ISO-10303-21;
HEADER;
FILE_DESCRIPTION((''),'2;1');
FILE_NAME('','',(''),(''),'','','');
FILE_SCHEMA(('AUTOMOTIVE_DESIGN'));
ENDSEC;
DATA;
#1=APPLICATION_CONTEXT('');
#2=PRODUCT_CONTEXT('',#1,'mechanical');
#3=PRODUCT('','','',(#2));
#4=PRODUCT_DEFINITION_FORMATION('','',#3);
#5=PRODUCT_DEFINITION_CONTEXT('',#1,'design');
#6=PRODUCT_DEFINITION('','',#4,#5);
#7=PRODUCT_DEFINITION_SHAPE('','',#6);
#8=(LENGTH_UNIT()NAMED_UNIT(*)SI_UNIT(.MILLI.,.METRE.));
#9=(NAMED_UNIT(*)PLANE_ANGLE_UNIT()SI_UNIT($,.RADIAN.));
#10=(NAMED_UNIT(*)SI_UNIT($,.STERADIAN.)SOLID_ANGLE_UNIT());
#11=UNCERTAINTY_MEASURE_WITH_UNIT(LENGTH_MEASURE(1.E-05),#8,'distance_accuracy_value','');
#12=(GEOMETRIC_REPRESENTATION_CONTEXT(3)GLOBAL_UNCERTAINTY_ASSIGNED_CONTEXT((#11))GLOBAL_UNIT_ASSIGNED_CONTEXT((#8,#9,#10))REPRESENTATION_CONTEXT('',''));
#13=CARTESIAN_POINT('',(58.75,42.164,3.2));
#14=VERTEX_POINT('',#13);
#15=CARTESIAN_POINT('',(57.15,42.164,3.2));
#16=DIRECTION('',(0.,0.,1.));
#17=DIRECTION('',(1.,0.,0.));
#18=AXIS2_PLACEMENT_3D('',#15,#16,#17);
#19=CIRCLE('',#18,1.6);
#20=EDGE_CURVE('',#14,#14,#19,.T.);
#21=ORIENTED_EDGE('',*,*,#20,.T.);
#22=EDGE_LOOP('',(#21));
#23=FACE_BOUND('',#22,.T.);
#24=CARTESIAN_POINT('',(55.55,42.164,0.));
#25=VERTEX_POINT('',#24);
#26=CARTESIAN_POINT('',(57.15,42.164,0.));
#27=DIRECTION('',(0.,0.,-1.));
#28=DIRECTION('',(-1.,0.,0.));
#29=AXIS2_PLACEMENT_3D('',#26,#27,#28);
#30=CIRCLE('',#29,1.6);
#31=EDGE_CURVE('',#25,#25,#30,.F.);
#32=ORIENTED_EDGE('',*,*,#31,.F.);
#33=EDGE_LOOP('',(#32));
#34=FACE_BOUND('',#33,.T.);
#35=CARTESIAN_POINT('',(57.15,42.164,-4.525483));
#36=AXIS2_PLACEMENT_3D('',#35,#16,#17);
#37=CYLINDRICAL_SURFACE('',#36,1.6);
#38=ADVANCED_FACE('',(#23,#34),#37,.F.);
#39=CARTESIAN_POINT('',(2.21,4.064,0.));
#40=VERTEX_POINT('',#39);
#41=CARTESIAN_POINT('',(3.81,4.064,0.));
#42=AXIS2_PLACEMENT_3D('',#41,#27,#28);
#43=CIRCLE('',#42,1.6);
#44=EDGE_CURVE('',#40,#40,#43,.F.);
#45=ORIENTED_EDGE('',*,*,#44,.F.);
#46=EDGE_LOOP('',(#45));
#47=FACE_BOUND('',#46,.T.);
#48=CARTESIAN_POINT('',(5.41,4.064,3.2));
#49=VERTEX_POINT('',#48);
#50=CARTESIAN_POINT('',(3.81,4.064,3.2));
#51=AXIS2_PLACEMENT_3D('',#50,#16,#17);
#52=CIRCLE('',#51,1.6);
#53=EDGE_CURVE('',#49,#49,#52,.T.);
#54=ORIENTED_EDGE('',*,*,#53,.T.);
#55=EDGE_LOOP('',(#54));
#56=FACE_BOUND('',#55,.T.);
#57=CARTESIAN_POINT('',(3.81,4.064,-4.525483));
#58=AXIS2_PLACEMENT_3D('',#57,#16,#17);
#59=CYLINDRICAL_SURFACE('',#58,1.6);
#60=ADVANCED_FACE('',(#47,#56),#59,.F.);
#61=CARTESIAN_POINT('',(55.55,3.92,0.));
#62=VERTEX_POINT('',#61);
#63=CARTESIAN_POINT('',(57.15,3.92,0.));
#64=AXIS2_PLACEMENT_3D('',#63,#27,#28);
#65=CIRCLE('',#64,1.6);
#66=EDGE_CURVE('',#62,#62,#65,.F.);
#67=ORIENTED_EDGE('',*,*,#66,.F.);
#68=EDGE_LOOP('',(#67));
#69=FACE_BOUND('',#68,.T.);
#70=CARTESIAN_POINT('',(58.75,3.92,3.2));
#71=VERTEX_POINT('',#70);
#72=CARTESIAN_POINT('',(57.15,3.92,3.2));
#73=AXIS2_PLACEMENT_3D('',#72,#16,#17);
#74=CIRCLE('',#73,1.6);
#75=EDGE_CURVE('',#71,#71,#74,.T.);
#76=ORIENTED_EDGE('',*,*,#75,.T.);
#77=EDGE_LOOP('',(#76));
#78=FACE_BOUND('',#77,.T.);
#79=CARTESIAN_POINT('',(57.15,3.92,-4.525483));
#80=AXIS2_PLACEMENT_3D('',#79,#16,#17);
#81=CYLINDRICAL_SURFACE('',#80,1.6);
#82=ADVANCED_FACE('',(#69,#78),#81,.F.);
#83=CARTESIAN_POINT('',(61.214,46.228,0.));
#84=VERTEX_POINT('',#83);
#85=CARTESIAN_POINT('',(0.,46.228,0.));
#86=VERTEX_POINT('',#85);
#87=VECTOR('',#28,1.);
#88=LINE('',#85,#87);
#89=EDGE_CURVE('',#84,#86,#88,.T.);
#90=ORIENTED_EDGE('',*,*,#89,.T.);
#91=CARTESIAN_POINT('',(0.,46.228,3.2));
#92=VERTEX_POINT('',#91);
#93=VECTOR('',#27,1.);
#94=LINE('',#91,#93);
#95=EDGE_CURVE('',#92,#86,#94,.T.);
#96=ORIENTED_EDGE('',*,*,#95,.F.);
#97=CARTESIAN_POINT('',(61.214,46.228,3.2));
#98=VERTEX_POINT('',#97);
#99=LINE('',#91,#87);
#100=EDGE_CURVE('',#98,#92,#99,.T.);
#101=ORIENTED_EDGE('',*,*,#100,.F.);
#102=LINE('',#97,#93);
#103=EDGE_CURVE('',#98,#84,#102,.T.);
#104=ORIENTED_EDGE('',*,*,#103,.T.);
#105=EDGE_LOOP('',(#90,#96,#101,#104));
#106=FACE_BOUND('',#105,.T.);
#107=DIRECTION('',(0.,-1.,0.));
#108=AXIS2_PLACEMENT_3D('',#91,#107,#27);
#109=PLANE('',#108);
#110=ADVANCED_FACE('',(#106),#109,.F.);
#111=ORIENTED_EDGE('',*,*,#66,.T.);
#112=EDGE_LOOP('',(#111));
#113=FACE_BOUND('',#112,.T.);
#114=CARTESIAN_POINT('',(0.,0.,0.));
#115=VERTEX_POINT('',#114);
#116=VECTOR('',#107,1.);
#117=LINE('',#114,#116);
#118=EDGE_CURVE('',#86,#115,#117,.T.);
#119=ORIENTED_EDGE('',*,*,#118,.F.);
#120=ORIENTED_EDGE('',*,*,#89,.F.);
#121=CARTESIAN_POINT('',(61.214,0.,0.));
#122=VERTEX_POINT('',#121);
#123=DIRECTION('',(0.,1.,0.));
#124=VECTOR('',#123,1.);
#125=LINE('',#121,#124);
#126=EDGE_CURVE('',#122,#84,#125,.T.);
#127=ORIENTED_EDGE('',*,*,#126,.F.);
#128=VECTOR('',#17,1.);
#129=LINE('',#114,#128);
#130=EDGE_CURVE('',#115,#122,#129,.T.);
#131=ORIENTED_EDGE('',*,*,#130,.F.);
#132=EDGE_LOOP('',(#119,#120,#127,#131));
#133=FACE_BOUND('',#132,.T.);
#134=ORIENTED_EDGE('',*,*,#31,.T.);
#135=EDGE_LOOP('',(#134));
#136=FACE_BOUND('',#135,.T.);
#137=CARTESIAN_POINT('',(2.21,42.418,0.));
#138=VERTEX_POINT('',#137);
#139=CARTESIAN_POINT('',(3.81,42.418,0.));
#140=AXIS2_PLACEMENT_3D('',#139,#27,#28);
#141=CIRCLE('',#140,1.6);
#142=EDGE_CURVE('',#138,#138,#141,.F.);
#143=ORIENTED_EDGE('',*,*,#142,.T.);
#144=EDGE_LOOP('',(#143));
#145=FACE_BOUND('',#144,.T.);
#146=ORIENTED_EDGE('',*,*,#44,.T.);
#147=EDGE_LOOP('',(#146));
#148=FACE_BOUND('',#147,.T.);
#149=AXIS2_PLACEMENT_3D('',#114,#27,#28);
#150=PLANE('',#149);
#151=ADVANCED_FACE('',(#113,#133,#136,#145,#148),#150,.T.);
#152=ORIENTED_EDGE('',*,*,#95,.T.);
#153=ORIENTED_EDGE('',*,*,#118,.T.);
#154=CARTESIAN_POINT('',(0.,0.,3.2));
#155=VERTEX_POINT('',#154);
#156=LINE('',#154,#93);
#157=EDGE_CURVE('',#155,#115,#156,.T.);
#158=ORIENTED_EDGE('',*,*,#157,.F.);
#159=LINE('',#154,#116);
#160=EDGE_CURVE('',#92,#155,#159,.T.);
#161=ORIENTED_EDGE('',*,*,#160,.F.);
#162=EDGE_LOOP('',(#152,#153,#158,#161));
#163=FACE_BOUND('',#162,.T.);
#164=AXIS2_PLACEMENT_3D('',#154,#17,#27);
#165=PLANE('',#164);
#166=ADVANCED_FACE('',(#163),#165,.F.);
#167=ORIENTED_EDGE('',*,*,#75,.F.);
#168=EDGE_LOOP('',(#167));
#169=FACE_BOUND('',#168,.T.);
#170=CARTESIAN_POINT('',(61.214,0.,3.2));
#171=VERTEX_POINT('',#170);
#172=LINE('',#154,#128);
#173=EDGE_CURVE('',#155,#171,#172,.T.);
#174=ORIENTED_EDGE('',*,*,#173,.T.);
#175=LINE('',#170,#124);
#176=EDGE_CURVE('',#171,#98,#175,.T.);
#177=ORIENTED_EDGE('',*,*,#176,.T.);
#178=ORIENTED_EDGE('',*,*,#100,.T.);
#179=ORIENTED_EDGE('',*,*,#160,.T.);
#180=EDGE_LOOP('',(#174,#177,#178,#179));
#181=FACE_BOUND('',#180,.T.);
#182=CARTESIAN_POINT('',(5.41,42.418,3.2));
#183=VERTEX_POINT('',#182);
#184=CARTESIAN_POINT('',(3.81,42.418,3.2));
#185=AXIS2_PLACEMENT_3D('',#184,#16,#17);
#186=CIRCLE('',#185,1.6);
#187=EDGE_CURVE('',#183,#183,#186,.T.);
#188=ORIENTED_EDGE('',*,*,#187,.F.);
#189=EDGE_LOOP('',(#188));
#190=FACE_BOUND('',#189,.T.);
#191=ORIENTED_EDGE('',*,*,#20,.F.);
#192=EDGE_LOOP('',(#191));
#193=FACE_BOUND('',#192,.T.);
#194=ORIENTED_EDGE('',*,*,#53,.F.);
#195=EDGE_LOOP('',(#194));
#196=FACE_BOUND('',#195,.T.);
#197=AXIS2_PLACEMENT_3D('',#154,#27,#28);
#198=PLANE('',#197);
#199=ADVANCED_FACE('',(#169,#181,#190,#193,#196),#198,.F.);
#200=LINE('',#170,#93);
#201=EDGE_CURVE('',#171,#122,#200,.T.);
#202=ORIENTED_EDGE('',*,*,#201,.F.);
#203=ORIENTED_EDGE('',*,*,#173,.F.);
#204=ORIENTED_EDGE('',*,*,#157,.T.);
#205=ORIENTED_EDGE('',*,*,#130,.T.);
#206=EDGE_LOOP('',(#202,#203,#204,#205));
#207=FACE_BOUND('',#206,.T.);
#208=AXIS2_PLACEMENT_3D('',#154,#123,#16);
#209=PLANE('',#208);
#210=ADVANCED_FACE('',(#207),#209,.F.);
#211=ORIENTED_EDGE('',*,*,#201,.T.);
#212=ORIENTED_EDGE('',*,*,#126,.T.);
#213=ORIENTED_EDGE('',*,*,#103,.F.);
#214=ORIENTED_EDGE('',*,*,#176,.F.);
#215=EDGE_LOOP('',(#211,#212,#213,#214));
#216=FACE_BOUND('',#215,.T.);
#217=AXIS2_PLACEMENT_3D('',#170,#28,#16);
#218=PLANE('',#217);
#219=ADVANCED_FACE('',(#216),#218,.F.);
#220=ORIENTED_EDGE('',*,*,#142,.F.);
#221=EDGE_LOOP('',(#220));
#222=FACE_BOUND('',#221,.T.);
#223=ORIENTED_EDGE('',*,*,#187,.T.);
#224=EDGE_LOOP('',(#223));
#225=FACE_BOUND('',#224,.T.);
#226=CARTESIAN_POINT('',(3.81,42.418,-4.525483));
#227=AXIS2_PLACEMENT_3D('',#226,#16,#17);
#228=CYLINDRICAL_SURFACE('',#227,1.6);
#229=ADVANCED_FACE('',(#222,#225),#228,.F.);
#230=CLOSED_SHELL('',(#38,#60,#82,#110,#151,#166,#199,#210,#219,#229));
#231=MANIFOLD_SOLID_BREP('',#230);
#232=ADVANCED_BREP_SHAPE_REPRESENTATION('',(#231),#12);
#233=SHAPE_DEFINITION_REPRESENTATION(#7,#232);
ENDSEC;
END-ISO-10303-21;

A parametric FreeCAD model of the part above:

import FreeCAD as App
import Part
import Sketcher

V = App.Vector
Q = App.Units.Quantity


def add_polygon(sketch, points):
    """Adds a closed chain of lines whose ends are joined by coincident constraints."""
    first, n = sketch.GeometryCount, len(points)
    for a, b in zip(points, points[1:] + points[:1]):
        sketch.addGeometry(Part.LineSegment(App.Vector(*a, 0), App.Vector(*b, 0)), False)
    for i in range(n):
        sketch.addConstraint(Sketcher.Constraint("Coincident", first + i, 2, first + (i + 1) % n, 1))

doc = App.newDocument("Part")
params = doc.addObject("Spreadsheet::Sheet", "Params")
for row, (alias, value) in enumerate([
    ("sketch1_width", "2.41 in"),
    ("sketch1_height", "1.82 in"),
    ("pad1_length", "3.2 mm"),
    ("pocket1_length", "3.2 mm"),
], start=1):
    params.set(f"A{row}", alias)
    params.set(f"B{row}", "=" + value)
    params.setAlias(f"B{row}", alias)

body = doc.addObject("PartDesign::Body", "Body")

# Sketch on XY plane
sketch1 = doc.addObject("Sketcher::SketchObject", "Sketch")
body.addObject(sketch1)
sketch1.AttachmentSupport = (doc.XY_Plane, [""])
sketch1.MapMode = "FlatFace"
add_polygon(sketch1, [(0, 46), (0, 0), (61, 0), (61, 46)])  # lines 0-3
sketch1.addConstraint([
    Sketcher.Constraint("Vertical", 0),
    Sketcher.Constraint("Horizontal", 1),
    Sketcher.Constraint("Vertical", 2),
    Sketcher.Constraint("Horizontal", 3),
    Sketcher.Constraint("Coincident", 0, 2, -1, 1),
    Sketcher.Constraint("DistanceX", 1, 1, 1, 2, Q("2.41 in")),
    Sketcher.Constraint("DistanceY", 0, 2, 0, 1, Q("1.82 in")),
])
sketch1.setExpression("Constraints[9]", "Params.sketch1_width")
sketch1.setExpression("Constraints[10]", "Params.sketch1_height")
pad1 = doc.addObject("PartDesign::Pad", "Pad")
body.addObject(pad1)
pad1.Profile = sketch1
pad1.setExpression("Length", "Params.pad1_length")

# Sketch on XY plane
sketch2 = doc.addObject("Sketcher::SketchObject", "Sketch001")
body.addObject(sketch2)
sketch2.AttachmentSupport = (doc.XY_Plane, [""])
sketch2.MapMode = "FlatFace"
sketch2.AttachmentOffset = App.Placement(V(0, 0, 3.2), App.Rotation())
sketch2.addGeometry([
    Part.Circle(V(3.8, 4.1, 0), V(0, 0, 1), 1.6),
    Part.Circle(V(3.8, 42.4, 0), V(0, 0, 1), 1.6),
    Part.Circle(V(57.1, 42.2, 0), V(0, 0, 1), 1.6),
    Part.Circle(V(57.1, 3.9, 0), V(0, 0, 1), 1.6),
], False)
sketch2.addConstraint([
    Sketcher.Constraint("Equal", 0, 1),
    Sketcher.Constraint("Equal", 1, 2),
    Sketcher.Constraint("Equal", 2, 3),
    Sketcher.Constraint("Vertical", 0, 3, 1, 3),
    Sketcher.Constraint("Vertical", 2, 3, 3, 3),
    Sketcher.Constraint("DistanceX", 1, 3, 2, 3, Q("2.1 in")),
    Sketcher.Constraint("DistanceY", 0, 3, 2, 3, Q("1.5 in")),
    Sketcher.Constraint("Diameter", 0, Q("3.2 mm")),
    Sketcher.Constraint("DistanceX", -1, 1, 0, 3, Q("0.15 in")),
    Sketcher.Constraint("DistanceY", -1, 1, 0, 3, Q("0.16 in")),
    Sketcher.Constraint("DistanceY", -1, 1, 1, 3, Q("1.67 in")),
    Sketcher.Constraint("DistanceY", -1, 1, 3, 3, Q("3.92 mm")),
])
pocket1 = doc.addObject("PartDesign::Pocket", "Pocket")
body.addObject(pocket1)
pocket1.Profile = sketch2
pocket1.setExpression("Length", "Params.pocket1_length")

doc.recompute()
